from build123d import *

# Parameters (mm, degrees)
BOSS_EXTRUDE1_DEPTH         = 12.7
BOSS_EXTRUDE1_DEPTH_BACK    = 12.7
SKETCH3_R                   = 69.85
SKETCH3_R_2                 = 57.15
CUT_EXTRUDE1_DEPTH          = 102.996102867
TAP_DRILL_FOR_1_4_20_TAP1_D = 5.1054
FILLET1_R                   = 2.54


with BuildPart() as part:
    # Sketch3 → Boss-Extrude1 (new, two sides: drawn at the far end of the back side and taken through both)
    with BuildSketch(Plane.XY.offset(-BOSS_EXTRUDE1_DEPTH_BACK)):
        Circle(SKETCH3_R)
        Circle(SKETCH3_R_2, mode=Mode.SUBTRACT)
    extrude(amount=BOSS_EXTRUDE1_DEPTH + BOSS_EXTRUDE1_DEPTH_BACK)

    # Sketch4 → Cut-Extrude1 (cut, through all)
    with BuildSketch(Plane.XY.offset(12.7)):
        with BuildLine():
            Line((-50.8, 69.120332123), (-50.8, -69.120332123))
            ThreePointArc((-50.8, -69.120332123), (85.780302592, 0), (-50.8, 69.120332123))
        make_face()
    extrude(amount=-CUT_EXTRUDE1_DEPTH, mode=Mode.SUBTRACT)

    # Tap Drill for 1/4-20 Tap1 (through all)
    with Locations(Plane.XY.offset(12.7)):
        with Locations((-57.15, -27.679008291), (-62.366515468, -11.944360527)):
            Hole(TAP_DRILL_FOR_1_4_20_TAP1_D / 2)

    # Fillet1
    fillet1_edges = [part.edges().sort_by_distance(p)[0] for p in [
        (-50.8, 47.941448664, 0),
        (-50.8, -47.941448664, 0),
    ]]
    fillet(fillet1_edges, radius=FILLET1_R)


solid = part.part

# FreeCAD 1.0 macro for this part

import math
import FreeCAD as App
import Part
import Sketcher
from FreeCAD import Vector
Q = App.Units.Quantity


def edges_at(feature, points):
    """Names of the edges that pass closest to the given points."""
    edges = feature.Shape.Edges
    near = lambda p: min(range(len(edges)), key=lambda i: edges[i].distToShape(Part.Vertex(*p))[0])
    return sorted({f"Edge{near(p) + 1}" for p in points})

doc = App.newDocument("Part")
body = doc.addObject("PartDesign::Body", "Body")

# Sketch on XY plane
sketch1 = body.newObject("Sketcher::SketchObject", "Sketch")
sketch1.AttachmentSupport = (doc.getObject("XY_Plane"), [""])
sketch1.MapMode = "FlatFace"
sketch1.addGeometry(Part.Circle(Vector(0, 0, 0), Vector(0, 0, 1), 69.85), False)
sketch1.addGeometry(Part.Circle(Vector(0, 0, 0), Vector(0, 0, 1), 57.15), False)
sketch1.addConstraint(Sketcher.Constraint("Coincident", 0, 3, -1, 1))
sketch1.addConstraint(Sketcher.Constraint("Coincident", 1, 3, -1, 1))
sketch1.addConstraint(Sketcher.Constraint("Diameter", 0, Q("5.5 in")))
sketch1.addConstraint(Sketcher.Constraint("Diameter", 1, Q("4.5 in")))
pad1 = body.newObject("PartDesign::Pad", "Pad")
pad1.Profile = sketch1
pad1.Type = "TwoLengths"
pad1.Length = Q("0.5 in")
pad1.Length2 = Q("0.5 in")

# Sketch on XY plane
sketch2 = body.newObject("Sketcher::SketchObject", "Sketch001")
sketch2.AttachmentSupport = (doc.getObject("XY_Plane"), [""])
sketch2.MapMode = "FlatFace"
sketch2.AttachmentOffset = App.Placement(Vector(0, 0, 0.5 * 25.4), App.Rotation())
sketch2.addGeometry(Part.LineSegment(Vector(-50.8, 69.120332, 0), Vector(-50.8, -69.120332, 0)), False)
sketch2.addGeometry(Part.ArcOfCircle(Part.Circle(Vector(0, 0, 0), Vector(0, 0, 1), 85.780303), math.radians(-126.314033), math.radians(126.314033)), False)
sketch2.addConstraint(Sketcher.Constraint("Coincident", 0, 1, 1, 2))
sketch2.addConstraint(Sketcher.Constraint("Coincident", 1, 1, 0, 2))
sketch2.addConstraint(Sketcher.Constraint("Vertical", 0))
sketch2.addConstraint(Sketcher.Constraint("Coincident", 1, 3, -1, 1))
sketch2.addConstraint(Sketcher.Constraint("DistanceX", 0, 1, -1, 1, Q("2 in")))
sketch2.addConstraint(Sketcher.Constraint("Radius", 1, Q("85.780303 mm")))
pocket1 = body.newObject("PartDesign::Pocket", "Pocket")
pocket1.Profile = sketch2
pocket1.Type = "ThroughAll"

# Sketch on XY plane
sketch3 = body.newObject("Sketcher::SketchObject", "Sketch002")
sketch3.AttachmentSupport = (doc.getObject("XY_Plane"), [""])
sketch3.MapMode = "FlatFace"
sketch3.AttachmentOffset = App.Placement(Vector(0, 0, 0.5 * 25.4), App.Rotation())
sketch3.addGeometry(Part.Circle(Vector(-57.15, -27.679008, 0), Vector(0, 0, 1), 2.5527), False)
sketch3.addGeometry(Part.Circle(Vector(-62.366515, -11.944361, 0), Vector(0, 0, 1), 2.5527), False)
sketch3.addConstraint(Sketcher.Constraint("Equal", 0, 1))
sketch3.addConstraint(Sketcher.Constraint("Diameter", 0, Q("0.201 in")))
sketch3.addConstraint(Sketcher.Constraint("DistanceX", 0, 3, -1, 1, Q("2.25 in")))
sketch3.addConstraint(Sketcher.Constraint("DistanceY", 0, 3, -1, 1, Q("27.679008 mm")))
sketch3.addConstraint(Sketcher.Constraint("DistanceY", 1, 3, -1, 1, Q("11.944361 mm")))
sketch3.addConstraint(Sketcher.Constraint("DistanceX", 1, 3, -1, 1, Q("62.366515 mm")))
doc.recompute()
hole = body.newObject("PartDesign::Hole", "Hole")
hole.Profile = sketch3
hole.ThreadType = "None"
hole.Diameter = Q("0.201 in")
hole.DepthType = "ThroughAll"
doc.recompute()

fillet = body.newObject("PartDesign::Fillet", "Fillet")
fillet.Base = (hole, edges_at(hole, [(-50.8, 47.941, 0), (-50.8, -47.941, 0)]))
fillet.Radius = Q("0.1 in")

doc.recompute()
